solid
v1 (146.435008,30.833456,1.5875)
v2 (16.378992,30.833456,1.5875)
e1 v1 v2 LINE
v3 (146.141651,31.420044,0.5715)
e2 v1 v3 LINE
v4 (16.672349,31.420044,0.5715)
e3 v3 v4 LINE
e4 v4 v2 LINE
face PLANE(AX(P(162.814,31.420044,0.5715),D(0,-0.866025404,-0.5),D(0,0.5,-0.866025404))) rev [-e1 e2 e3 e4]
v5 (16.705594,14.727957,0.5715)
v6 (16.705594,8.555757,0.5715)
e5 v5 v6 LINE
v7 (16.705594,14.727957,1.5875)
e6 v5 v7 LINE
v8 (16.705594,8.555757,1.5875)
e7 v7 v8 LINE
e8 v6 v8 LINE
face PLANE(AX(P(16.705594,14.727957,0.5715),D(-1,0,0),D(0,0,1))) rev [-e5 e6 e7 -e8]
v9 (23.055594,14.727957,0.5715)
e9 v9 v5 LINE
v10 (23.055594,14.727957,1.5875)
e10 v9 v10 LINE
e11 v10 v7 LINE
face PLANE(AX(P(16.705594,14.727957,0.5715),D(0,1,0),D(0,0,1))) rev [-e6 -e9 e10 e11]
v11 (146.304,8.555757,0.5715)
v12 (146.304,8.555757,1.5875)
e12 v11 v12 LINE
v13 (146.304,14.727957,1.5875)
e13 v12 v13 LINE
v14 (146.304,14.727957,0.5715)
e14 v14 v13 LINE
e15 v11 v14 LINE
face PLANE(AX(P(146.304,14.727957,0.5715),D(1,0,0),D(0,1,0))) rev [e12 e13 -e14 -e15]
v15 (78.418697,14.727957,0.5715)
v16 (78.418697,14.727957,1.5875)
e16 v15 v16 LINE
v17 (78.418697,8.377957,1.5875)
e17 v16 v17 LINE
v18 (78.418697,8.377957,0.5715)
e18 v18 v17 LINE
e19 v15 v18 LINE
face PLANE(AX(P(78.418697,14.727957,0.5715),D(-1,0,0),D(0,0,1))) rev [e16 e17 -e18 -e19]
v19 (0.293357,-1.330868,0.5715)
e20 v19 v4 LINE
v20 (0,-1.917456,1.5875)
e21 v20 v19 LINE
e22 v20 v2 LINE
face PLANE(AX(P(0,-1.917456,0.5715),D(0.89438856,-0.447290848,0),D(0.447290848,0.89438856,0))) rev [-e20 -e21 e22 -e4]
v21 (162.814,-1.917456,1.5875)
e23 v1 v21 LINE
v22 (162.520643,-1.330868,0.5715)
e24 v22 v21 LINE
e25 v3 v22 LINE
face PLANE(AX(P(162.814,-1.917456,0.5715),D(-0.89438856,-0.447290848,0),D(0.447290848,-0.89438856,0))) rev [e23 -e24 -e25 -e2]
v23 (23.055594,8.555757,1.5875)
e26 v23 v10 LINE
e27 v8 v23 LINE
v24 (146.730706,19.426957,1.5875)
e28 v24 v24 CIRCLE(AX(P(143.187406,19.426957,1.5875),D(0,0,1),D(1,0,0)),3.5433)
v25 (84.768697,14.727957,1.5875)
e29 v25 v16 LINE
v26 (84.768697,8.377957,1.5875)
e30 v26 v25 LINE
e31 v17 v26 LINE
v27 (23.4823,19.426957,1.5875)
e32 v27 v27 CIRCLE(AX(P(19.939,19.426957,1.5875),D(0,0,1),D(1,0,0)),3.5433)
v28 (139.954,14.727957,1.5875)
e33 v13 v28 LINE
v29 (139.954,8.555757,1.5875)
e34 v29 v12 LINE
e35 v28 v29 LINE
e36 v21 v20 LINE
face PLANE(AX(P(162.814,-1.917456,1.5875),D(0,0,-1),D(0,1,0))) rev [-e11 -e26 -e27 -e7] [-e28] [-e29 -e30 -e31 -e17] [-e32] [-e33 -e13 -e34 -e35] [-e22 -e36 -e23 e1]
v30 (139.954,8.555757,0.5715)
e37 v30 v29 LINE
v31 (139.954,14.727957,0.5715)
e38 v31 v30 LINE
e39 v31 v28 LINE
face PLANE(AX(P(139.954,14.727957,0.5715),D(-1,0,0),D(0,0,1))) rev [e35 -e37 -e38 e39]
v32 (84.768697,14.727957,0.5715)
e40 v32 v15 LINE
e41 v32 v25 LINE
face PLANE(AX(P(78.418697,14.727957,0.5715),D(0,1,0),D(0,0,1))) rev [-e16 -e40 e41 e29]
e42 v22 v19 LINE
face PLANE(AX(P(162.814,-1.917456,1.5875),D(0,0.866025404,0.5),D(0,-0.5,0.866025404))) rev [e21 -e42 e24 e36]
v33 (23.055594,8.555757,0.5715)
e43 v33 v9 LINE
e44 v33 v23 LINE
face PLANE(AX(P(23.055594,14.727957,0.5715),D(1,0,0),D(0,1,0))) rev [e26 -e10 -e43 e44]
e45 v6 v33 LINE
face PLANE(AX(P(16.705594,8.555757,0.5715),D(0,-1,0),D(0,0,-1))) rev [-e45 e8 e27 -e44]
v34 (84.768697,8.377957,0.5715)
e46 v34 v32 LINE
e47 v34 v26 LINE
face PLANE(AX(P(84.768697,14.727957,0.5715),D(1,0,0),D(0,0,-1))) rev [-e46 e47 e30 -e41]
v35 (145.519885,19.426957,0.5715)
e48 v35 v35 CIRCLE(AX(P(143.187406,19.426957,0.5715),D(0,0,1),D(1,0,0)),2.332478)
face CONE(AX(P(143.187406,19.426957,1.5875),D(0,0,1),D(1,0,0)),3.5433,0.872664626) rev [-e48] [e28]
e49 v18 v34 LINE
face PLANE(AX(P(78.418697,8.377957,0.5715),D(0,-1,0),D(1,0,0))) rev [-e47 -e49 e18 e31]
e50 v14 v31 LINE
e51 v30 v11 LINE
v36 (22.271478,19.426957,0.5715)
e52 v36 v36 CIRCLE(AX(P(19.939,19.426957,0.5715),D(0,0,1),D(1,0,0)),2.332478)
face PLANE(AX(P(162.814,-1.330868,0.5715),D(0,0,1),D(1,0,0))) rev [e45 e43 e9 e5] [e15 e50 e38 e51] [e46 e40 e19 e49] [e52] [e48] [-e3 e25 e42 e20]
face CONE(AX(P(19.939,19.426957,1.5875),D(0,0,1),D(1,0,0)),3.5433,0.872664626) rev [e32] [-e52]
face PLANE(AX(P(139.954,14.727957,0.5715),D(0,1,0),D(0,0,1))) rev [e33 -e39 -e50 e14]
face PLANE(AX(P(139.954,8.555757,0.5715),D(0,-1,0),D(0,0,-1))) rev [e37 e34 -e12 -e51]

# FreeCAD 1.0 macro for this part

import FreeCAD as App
import Part
import Sketcher
from FreeCAD import Vector
Q = App.Units.Quantity


def add_polygon(sketch, points):
    """Adds a closed chain of lines whose ends are joined by coincident constraints."""
    first, n = sketch.GeometryCount, len(points)
    for a, b in zip(points, points[1:] + points[:1]):
        sketch.addGeometry(Part.LineSegment(App.Vector(*a, 0), App.Vector(*b, 0)), False)
    for i in range(n):
        sketch.addConstraint(Sketcher.Constraint("Coincident", first + i, 2, first + (i + 1) % n, 1))

doc = App.newDocument("Part")
params = doc.addObject("Spreadsheet::Sheet", "Params")
for row, (alias, value) in enumerate([
    ("pad1_length", "6.41 in"),
    ("sketch2_height", "1.3125 in"),
    ("sketch3_width", "0.25 in"),
    ("sketch3_height", "0.243 in"),
    ("sketch4_height", "0.04 in"),
    ("groove_angle", "360 deg"),
    ("linearpattern_pitch", "123.248406 mm"),
], start=1):
    params.set(f"A{row}", alias)
    params.set(f"B{row}", "=" + value)
    params.setAlias(f"B{row}", alias)

body = doc.addObject("PartDesign::Body", "Body")

# Sketch on YZ plane
sketch1 = doc.addObject("Sketcher::SketchObject", "Sketch")
body.addObject(sketch1)
sketch1.AttachmentSupport = (doc.YZ_Plane, [""])
sketch1.MapMode = "FlatFace"
add_polygon(sketch1, [(31.4, 0.6), (30.8, 1.6), (-1.9, 1.6), (-1.3, 0.6)])  # lines 0-3
sketch1.addConstraint([
    Sketcher.Constraint("Horizontal", 1),
    Sketcher.Constraint("Horizontal", 3),
    Sketcher.Constraint("Parallel", 0, 2),
    Sketcher.Constraint("Angle", 0, Q("120 deg")),
    Sketcher.Constraint("DistanceY", 2, 2, 1, 2, Q("0.04 in")),
    Sketcher.Constraint("DistanceY", -1, 1, 0, 2, Q("0.0625 in")),
    Sketcher.Constraint("DistanceX", 1, 2, 3, 2, Q("1.3125 in")),
    Sketcher.Constraint("DistanceX", -1, 1, 0, 2, 30.833456),
])
pad1 = doc.addObject("PartDesign::Pad", "Pad")
body.addObject(pad1)
pad1.Profile = sketch1
pad1.setExpression("Length", "Params.pad1_length")

# Sketch on XY plane
sketch2 = doc.addObject("Sketcher::SketchObject", "Sketch001")
body.addObject(sketch2)
sketch2.AttachmentSupport = (doc.XY_Plane, [""])
sketch2.MapMode = "FlatFace"
sketch2.AttachmentOffset = App.Placement(Vector(0, 0, 0.0625 * 25.4), App.Rotation())
add_polygon(sketch2, [(0, -2), (17, 31), (0, 31)])  # lines 0-2
add_polygon(sketch2, [(146, 31), (163, -2), (163, 31)])  # lines 3-5
sketch2.addConstraint([
    Sketcher.Constraint("Horizontal", 1),
    Sketcher.Constraint("Vertical", 2),
    Sketcher.Constraint("Vertical", 4),
    Sketcher.Constraint("Horizontal", 5),
    Sketcher.Constraint("PointOnObject", 1, 2, -2),
    Sketcher.Constraint("Horizontal", 2, 2, 3, 2),
    Sketcher.Constraint("Horizontal", 1, 2, 4, 2),
    Sketcher.Constraint("Equal", 1, 5),
    Sketcher.Constraint("DistanceY", 2, 2, 2, 1, Q("1.3125 in")),
    Sketcher.Constraint("DistanceX", -1, 1, 3, 2, Q("6.41 in")),
    Sketcher.Constraint("Angle", 0, Q("63.43 deg")),
    Sketcher.Constraint("DistanceY", -1, 1, 0, 2, 31.420044),
])
sketch2.setExpression("Constraints[14]", "Params.sketch2_height")
pocket1 = doc.addObject("PartDesign::Pocket", "Pocket")
body.addObject(pocket1)
pocket1.Profile = sketch2
pocket1.Type = "ThroughAll"

# Sketch on XY plane
sketch3 = doc.addObject("Sketcher::SketchObject", "Sketch002")
body.addObject(sketch3)
sketch3.AttachmentSupport = (doc.XY_Plane, [""])
sketch3.MapMode = "FlatFace"
sketch3.AttachmentOffset = App.Placement(Vector(0, 0, 0.0625 * 25.4), App.Rotation())
add_polygon(sketch3, [(17, 15), (17, 9), (23, 9), (23, 15)])  # lines 0-3
add_polygon(sketch3, [(140, 15), (140, 9), (146, 9), (146, 15)])  # lines 4-7
add_polygon(sketch3, [(78, 15), (78, 8), (85, 8), (85, 15)])  # lines 8-11
sketch3.addConstraint([
    Sketcher.Constraint("Vertical", 0),
    Sketcher.Constraint("Horizontal", 1),
    Sketcher.Constraint("Vertical", 2),
    Sketcher.Constraint("Horizontal", 3),
    Sketcher.Constraint("Vertical", 4),
    Sketcher.Constraint("Horizontal", 5),
    Sketcher.Constraint("Vertical", 6),
    Sketcher.Constraint("Horizontal", 7),
    Sketcher.Constraint("Vertical", 8),
    Sketcher.Constraint("Horizontal", 9),
    Sketcher.Constraint("Vertical", 10),
    Sketcher.Constraint("Horizontal", 11),
    Sketcher.Constraint("Horizontal", 1, 2, 4, 2),
    Sketcher.Constraint("Horizontal", 3, 2, 6, 2),
    Sketcher.Constraint("Horizontal", 7, 2, 10, 2),
    Sketcher.Constraint("Equal", 3, 5),
    Sketcher.Constraint("Equal", 7, 9),
    Sketcher.Constraint("Equal", 11, 8),
    Sketcher.Constraint("DistanceX", 1, 1, 1, 2, Q("0.25 in")),
    Sketcher.Constraint("DistanceY", 0, 2, 0, 1, Q("0.243 in")),
    Sketcher.Constraint("DistanceX", -1, 1, 4, 2, Q("5.51 in")),
    Sketcher.Constraint("DistanceX", -1, 1, 0, 2, 16.705594),
    Sketcher.Constraint("DistanceY", -1, 1, 0, 2, 8.555757),
    Sketcher.Constraint("DistanceX", -1, 1, 8, 2, 78.418697),
])
sketch3.setExpression("Constraints[30]", "Params.sketch3_width")
sketch3.setExpression("Constraints[31]", "Params.sketch3_height")
pocket2 = doc.addObject("PartDesign::Pocket", "Pocket001")
body.addObject(pocket2)
pocket2.Profile = sketch3
pocket2.Type = "ThroughAll"

# Sketch on YZ plane
sketch4 = doc.addObject("Sketcher::SketchObject", "Sketch003")
body.addObject(sketch4)
sketch4.AttachmentSupport = (doc.YZ_Plane, [""])
sketch4.MapMode = "FlatFace"
sketch4.AttachmentOffset = App.Placement(Vector(0, 0, 0.785 * 25.4), App.Rotation())
add_polygon(sketch4, [(19.43, 0.57), (19.43, 1.59), (15.88, 1.59), (17.53, 0.21), (17.53, 0.57)])  # lines 0-4
sketch4.addGeometry(Part.LineSegment(Vector(19.43, 1.59, 0), Vector(19.43, 0.21, 0)), True)  # axis
sketch4.addConstraint([
    Sketcher.Constraint("Vertical", 0),
    Sketcher.Constraint("Horizontal", 1),
    Sketcher.Constraint("Vertical", 3),
    Sketcher.Constraint("Horizontal", 4),
    Sketcher.Constraint("Vertical", 5),
    Sketcher.Constraint("Coincident", 5, 1, 0, 2),
    Sketcher.Constraint("Horizontal", 2, 2, 5, 2),
    Sketcher.Constraint("Angle", 2, Q("-40 deg")),
    Sketcher.Constraint("DistanceY", 0, 1, 0, 2, Q("0.04 in")),
    Sketcher.Constraint("DistanceX", 1, 2, 1, 1, Q("0.1395 in")),
    Sketcher.Constraint("DistanceY", -1, 1, 0, 2, Q("0.0625 in")),
    Sketcher.Constraint("DistanceX", 4, 1, 4, 2, 1.89865),
    Sketcher.Constraint("DistanceX", -1, 1, 0, 2, 19.426957),
])
sketch4.setExpression("Constraints[13]", "Params.sketch4_height")
groove = doc.addObject("PartDesign::Groove", "Groove")
body.addObject(groove)
groove.Profile = sketch4
groove.ReferenceAxis = (sketch4, ["Axis0"])
groove.setExpression("Angle", "Params.groove_angle")
doc.recompute()

linearpattern = doc.addObject("PartDesign::LinearPattern", "LinearPattern")
body.addObject(linearpattern)
linearpattern.Originals = [groove]
linearpattern.Direction = (doc.X_Axis, [""])
linearpattern.Mode = "offset"
linearpattern.setExpression("Offset", "Params.linearpattern_pitch")
linearpattern.Occurrences = 2
body.Tip = linearpattern

doc.recompute()
